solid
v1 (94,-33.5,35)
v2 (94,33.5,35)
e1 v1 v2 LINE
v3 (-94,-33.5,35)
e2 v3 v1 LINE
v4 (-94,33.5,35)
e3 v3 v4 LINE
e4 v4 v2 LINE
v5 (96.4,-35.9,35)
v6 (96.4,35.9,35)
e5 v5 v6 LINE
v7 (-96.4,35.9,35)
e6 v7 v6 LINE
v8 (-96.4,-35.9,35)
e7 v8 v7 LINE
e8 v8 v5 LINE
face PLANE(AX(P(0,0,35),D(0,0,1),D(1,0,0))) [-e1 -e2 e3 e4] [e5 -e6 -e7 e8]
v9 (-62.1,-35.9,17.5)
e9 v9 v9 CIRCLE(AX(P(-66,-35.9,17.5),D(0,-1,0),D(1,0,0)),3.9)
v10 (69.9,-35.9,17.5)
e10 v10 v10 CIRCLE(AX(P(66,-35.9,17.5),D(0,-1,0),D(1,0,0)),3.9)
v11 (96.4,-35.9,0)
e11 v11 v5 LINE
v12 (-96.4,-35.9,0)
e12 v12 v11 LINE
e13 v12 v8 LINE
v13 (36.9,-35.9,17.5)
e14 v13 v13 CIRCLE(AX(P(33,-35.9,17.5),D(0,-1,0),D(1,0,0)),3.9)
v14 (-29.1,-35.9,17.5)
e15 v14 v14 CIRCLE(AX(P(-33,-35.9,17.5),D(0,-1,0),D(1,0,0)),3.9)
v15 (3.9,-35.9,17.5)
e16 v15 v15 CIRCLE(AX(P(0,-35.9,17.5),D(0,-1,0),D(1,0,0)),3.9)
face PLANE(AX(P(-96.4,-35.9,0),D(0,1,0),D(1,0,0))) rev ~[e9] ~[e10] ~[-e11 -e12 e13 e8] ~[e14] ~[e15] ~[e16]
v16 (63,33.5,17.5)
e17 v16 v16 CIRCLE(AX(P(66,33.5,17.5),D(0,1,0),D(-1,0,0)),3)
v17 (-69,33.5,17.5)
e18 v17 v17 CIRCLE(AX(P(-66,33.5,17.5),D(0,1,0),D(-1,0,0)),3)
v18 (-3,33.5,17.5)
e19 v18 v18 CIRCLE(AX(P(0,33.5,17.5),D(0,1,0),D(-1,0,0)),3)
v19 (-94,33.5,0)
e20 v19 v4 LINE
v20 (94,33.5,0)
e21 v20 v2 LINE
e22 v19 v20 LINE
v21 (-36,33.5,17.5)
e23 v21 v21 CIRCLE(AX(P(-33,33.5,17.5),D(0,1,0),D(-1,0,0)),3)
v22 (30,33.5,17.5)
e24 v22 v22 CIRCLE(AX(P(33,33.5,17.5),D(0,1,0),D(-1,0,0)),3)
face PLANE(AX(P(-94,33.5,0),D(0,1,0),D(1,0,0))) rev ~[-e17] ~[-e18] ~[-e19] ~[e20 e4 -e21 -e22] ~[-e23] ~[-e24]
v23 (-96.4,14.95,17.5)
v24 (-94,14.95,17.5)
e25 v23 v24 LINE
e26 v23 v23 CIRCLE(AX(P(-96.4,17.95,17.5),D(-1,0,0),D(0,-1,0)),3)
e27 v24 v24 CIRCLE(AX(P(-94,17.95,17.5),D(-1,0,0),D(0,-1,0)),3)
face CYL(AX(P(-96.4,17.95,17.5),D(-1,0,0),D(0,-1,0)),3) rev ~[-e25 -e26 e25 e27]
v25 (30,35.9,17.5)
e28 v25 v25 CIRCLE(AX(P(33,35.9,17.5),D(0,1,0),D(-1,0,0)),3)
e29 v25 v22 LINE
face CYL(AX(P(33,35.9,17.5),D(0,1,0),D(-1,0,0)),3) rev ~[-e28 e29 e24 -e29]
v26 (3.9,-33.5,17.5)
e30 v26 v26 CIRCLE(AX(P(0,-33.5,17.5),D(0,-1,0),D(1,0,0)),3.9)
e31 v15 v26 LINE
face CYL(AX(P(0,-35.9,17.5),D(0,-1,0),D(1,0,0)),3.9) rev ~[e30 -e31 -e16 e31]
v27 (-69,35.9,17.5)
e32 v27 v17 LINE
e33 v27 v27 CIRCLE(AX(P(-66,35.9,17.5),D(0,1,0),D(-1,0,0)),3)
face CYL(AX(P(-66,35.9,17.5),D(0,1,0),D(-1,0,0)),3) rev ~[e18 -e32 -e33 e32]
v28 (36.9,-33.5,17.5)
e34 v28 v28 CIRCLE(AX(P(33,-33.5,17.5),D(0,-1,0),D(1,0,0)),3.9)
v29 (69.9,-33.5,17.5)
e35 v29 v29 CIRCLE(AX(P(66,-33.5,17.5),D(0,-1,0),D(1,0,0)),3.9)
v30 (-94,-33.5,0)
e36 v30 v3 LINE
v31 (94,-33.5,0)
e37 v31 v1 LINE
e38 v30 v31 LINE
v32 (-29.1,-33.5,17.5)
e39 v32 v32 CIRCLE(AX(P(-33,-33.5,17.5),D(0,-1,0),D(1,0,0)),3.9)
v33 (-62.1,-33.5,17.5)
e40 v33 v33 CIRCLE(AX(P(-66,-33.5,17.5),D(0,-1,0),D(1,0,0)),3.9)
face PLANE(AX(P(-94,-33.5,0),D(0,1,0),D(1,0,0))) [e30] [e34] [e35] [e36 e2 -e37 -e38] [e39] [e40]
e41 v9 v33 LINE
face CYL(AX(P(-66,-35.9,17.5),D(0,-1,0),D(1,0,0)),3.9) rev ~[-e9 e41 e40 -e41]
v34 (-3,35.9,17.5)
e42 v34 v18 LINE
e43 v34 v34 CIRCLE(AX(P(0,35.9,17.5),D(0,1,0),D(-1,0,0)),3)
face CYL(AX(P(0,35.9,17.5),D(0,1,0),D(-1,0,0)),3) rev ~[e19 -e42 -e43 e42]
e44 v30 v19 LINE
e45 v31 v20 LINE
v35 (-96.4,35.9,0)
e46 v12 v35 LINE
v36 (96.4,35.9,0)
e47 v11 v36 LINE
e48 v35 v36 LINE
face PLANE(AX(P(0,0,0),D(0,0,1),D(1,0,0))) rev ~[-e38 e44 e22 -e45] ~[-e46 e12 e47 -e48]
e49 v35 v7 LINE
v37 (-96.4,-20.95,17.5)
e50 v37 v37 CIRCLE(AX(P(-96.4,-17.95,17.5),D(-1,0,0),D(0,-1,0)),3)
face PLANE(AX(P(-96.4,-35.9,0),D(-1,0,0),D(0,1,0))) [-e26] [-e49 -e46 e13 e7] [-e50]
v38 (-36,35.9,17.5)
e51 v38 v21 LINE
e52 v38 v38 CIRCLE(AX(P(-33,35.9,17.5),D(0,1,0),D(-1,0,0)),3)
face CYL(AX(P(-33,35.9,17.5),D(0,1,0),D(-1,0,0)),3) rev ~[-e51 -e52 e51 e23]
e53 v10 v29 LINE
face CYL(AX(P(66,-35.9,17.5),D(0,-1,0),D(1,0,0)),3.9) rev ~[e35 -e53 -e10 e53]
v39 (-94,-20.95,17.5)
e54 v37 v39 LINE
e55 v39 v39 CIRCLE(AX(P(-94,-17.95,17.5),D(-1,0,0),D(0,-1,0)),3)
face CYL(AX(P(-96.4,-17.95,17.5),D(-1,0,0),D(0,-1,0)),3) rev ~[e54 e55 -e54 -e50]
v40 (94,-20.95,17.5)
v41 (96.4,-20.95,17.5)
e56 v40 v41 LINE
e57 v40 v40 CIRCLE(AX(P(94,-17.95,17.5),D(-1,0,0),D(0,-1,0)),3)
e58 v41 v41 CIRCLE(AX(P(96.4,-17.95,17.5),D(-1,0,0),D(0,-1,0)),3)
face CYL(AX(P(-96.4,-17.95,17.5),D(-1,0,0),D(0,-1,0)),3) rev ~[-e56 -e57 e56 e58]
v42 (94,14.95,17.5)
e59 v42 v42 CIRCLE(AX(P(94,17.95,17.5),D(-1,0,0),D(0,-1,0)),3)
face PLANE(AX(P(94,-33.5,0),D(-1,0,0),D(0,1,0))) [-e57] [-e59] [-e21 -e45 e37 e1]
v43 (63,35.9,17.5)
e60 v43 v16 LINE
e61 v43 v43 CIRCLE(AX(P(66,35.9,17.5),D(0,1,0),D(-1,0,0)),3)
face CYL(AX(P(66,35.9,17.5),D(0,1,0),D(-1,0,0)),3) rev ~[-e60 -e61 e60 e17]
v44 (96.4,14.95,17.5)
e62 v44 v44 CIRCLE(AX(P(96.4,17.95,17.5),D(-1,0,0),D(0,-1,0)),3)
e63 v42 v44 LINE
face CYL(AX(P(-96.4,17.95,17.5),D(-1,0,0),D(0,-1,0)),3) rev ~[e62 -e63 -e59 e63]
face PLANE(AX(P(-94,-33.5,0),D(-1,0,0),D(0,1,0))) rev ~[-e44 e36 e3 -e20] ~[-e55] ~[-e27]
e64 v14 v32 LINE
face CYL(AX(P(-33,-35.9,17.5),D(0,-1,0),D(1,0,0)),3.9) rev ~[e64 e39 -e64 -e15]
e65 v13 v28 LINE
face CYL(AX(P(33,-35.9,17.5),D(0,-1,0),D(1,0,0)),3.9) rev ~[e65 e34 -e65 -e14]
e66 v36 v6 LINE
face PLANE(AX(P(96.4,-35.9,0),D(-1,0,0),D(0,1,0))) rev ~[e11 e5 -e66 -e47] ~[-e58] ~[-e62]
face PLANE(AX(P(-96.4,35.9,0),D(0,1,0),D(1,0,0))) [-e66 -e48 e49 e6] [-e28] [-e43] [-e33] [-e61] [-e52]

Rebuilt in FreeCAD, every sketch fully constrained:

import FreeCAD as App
import Part
import Sketcher
from FreeCAD import Vector


def add_polygon(sketch, points):
    """Adds a closed chain of lines whose ends are joined by coincident constraints."""
    first, n = sketch.GeometryCount, len(points)
    for a, b in zip(points, points[1:] + points[:1]):
        sketch.addGeometry(Part.LineSegment(App.Vector(*a, 0), App.Vector(*b, 0)), False)
    for i in range(n):
        sketch.addConstraint(Sketcher.Constraint("Coincident", first + i, 2, first + (i + 1) % n, 1))

doc = App.newDocument("Part")
body = doc.addObject("PartDesign::Body", "Body")

# Sketch on XY plane
sketch1 = body.newObject("Sketcher::SketchObject", "Sketch")
sketch1.AttachmentSupport = (doc.getObject("XY_Plane"), [""])
sketch1.MapMode = "FlatFace"
add_polygon(sketch1, [(-96.4, 35.9), (-96.4, -35.9), (96.4, -35.9), (96.4, 35.9)])  # lines 0-3
add_polygon(sketch1, [(94, -33.5), (-94, -33.5), (-94, 33.5), (94, 33.5)])  # lines 4-7
sketch1.addConstraint([
    Sketcher.Constraint("Vertical", 0),
    Sketcher.Constraint("Horizontal", 1),
    Sketcher.Constraint("Vertical", 2),
    Sketcher.Constraint("Horizontal", 3),
    Sketcher.Constraint("Horizontal", 4),
    Sketcher.Constraint("Vertical", 5),
    Sketcher.Constraint("Horizontal", 6),
    Sketcher.Constraint("Vertical", 7),
    Sketcher.Constraint("Symmetric", 0, 2, 2, 2, -1, 1),
    Sketcher.Constraint("Symmetric", 4, 2, 6, 2, -1, 1),
    Sketcher.Constraint("DistanceX", 4, 2, 4, 1, 188.0),
    Sketcher.Constraint("DistanceY", 5, 1, 5, 2, 67.0),
    Sketcher.Constraint("DistanceX", 1, 1, 1, 2, 192.8),
    Sketcher.Constraint("DistanceY", 0, 2, 0, 1, 71.8),
])
pad1 = body.newObject("PartDesign::Pad", "Pad")
pad1.Profile = sketch1
pad1.Length = 35

# Sketch on YZ plane
sketch2 = body.newObject("Sketcher::SketchObject", "Sketch001")
sketch2.AttachmentSupport = (doc.getObject("YZ_Plane"), [""])
sketch2.MapMode = "FlatFace"
sketch2.AttachmentOffset = App.Placement(Vector(0, 0, -96.4), App.Rotation())
sketch2.addGeometry([
    Part.Circle(Vector(17.95, 17.5, 0), Vector(0, 0, 1), 3),
    Part.Circle(Vector(-17.95, 17.5, 0), Vector(0, 0, 1), 3),
], False)
sketch2.addConstraint([
    Sketcher.Constraint("Equal", 0, 1),
    Sketcher.Constraint("Symmetric", 0, 3, 1, 3, -2),
    Sketcher.Constraint("Diameter", 0, 6.0),
    Sketcher.Constraint("DistanceY", -1, 1, 0, 3, 17.5),
    Sketcher.Constraint("DistanceX", 1, 3, 0, 3, 35.9),
])
pocket1 = body.newObject("PartDesign::Pocket", "Pocket")
pocket1.Profile = sketch2
pocket1.Type = "ThroughAll"
pocket1.Reversed = True

# Sketch on XZ plane
sketch3 = body.newObject("Sketcher::SketchObject", "Sketch002")
sketch3.AttachmentSupport = (doc.getObject("XZ_Plane"), [""])
sketch3.MapMode = "FlatFace"
sketch3.AttachmentOffset = App.Placement(Vector(0, 0, 35.9), App.Rotation())
sketch3.addGeometry([
    Part.Circle(Vector(0, 17.5, 0), Vector(0, 0, 1), 3.9),  # 0
    Part.Circle(Vector(33, 17.5, 0), Vector(0, 0, 1), 3.9),  # 1
    Part.Circle(Vector(66, 17.5, 0), Vector(0, 0, 1), 3.9),  # 2
    Part.Circle(Vector(-33, 17.5, 0), Vector(0, 0, 1), 3.9),  # 3
    Part.Circle(Vector(-66, 17.5, 0), Vector(0, 0, 1), 3.9),  # 4
], False)
sketch3.addConstraint([
    Sketcher.Constraint("Equal", 0, 1),
    Sketcher.Constraint("Equal", 1, 2),
    Sketcher.Constraint("Equal", 2, 3),
    Sketcher.Constraint("Equal", 3, 4),
    Sketcher.Constraint("Symmetric", 1, 3, 3, 3, -2),
    Sketcher.Constraint("Symmetric", 2, 3, 4, 3, -2),
    Sketcher.Constraint("PointOnObject", 0, 3, -2),
    Sketcher.Constraint("Horizontal", 0, 3, 1, 3),
    Sketcher.Constraint("Horizontal", 1, 3, 2, 3),
    Sketcher.Constraint("Diameter", 0, 7.8),
    Sketcher.Constraint("DistanceX", -1, 1, 1, 3, 33.0),
    Sketcher.Constraint("DistanceX", -1, 1, 2, 3, 66.0),
    Sketcher.Constraint("DistanceY", -1, 1, 0, 3, 17.5),
])
pocket2 = body.newObject("PartDesign::Pocket", "Pocket001")
pocket2.Profile = sketch3
pocket2.Length = 25

# Sketch on XZ plane
sketch4 = body.newObject("Sketcher::SketchObject", "Sketch003")
sketch4.AttachmentSupport = (doc.getObject("XZ_Plane"), [""])
sketch4.MapMode = "FlatFace"
sketch4.AttachmentOffset = App.Placement(Vector(0, 0, -35.9), App.Rotation())
sketch4.addGeometry([
    Part.Circle(Vector(0, 17.5, 0), Vector(0, 0, 1), 3),  # 0
    Part.Circle(Vector(-33, 17.5, 0), Vector(0, 0, 1), 3),  # 1
    Part.Circle(Vector(-66, 17.5, 0), Vector(0, 0, 1), 3),  # 2
    Part.Circle(Vector(33, 17.5, 0), Vector(0, 0, 1), 3),  # 3
    Part.Circle(Vector(66, 17.5, 0), Vector(0, 0, 1), 3),  # 4
], False)
sketch4.addConstraint([
    Sketcher.Constraint("Equal", 0, 1),
    Sketcher.Constraint("Equal", 1, 2),
    Sketcher.Constraint("Equal", 2, 3),
    Sketcher.Constraint("Equal", 3, 4),
    Sketcher.Constraint("Symmetric", 1, 3, 3, 3, -2),
    Sketcher.Constraint("Symmetric", 2, 3, 4, 3, -2),
    Sketcher.Constraint("PointOnObject", 0, 3, -2),
    Sketcher.Constraint("Horizontal", 0, 3, 1, 3),
    Sketcher.Constraint("Horizontal", 1, 3, 2, 3),
    Sketcher.Constraint("Diameter", 0, 6.0),
    Sketcher.Constraint("DistanceX", 1, 3, -1, 1, 33.0),
    Sketcher.Constraint("DistanceX", 2, 3, -1, 1, 66.0),
    Sketcher.Constraint("DistanceY", -1, 1, 0, 3, 17.5),
])
pocket3 = body.newObject("PartDesign::Pocket", "Pocket002")
pocket3.Profile = sketch4
pocket3.Length = 25
pocket3.Reversed = True

doc.recompute()
